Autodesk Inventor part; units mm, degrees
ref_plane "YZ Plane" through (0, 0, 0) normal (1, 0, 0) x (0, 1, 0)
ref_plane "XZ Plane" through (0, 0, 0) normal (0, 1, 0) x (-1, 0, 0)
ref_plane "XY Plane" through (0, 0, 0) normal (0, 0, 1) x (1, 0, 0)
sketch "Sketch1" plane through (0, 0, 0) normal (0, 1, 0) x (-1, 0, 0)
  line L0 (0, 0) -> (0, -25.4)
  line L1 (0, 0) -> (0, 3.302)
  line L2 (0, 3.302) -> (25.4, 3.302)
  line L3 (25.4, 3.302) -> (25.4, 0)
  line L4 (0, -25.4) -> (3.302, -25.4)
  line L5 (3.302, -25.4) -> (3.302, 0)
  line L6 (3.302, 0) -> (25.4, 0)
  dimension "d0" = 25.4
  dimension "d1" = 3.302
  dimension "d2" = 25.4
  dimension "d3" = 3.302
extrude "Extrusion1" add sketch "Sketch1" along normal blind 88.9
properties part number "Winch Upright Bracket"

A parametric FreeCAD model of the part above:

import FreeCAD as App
import Part
import Sketcher
Q = App.Units.Quantity


def add_polygon(sketch, points):
    """Adds a closed chain of lines whose ends are joined by coincident constraints."""
    first, n = sketch.GeometryCount, len(points)
    for a, b in zip(points, points[1:] + points[:1]):
        sketch.addGeometry(Part.LineSegment(App.Vector(*a, 0), App.Vector(*b, 0)), False)
    for i in range(n):
        sketch.addConstraint(Sketcher.Constraint("Coincident", first + i, 2, first + (i + 1) % n, 1))

doc = App.newDocument("Part")
body = doc.addObject("PartDesign::Body", "Body")

# Sketch on XZ plane
sketch1 = body.newObject("Sketcher::SketchObject", "Sketch")
sketch1.AttachmentSupport = (doc.getObject("XZ_Plane"), [""])
sketch1.MapMode = "FlatFace"
add_polygon(sketch1, [(0, 3.3), (0, -25.4), (-3.3, -25.4), (-3.3, 0), (-25.4, 0), (-25.4, 3.3)])  # lines 0-5
sketch1.addConstraint([
    Sketcher.Constraint("Vertical", 0),
    Sketcher.Constraint("Horizontal", 1),
    Sketcher.Constraint("Vertical", 2),
    Sketcher.Constraint("Horizontal", 3),
    Sketcher.Constraint("Vertical", 4),
    Sketcher.Constraint("Horizontal", 5),
    Sketcher.Constraint("PointOnObject", 0, 2, -2),
    Sketcher.Constraint("PointOnObject", 2, 2, -1),
    Sketcher.Constraint("Equal", 5, 2),
    Sketcher.Constraint("Equal", 1, 4),
    Sketcher.Constraint("DistanceX", 5, 1, 5, 2, Q("1 in")),
    Sketcher.Constraint("DistanceX", 1, 2, 1, 1, Q("0.13 in")),
])
pad1 = body.newObject("PartDesign::Pad", "Pad")
pad1.Profile = sketch1
pad1.Length = Q("3.5 in")
pad1.Reversed = True

doc.recompute()
